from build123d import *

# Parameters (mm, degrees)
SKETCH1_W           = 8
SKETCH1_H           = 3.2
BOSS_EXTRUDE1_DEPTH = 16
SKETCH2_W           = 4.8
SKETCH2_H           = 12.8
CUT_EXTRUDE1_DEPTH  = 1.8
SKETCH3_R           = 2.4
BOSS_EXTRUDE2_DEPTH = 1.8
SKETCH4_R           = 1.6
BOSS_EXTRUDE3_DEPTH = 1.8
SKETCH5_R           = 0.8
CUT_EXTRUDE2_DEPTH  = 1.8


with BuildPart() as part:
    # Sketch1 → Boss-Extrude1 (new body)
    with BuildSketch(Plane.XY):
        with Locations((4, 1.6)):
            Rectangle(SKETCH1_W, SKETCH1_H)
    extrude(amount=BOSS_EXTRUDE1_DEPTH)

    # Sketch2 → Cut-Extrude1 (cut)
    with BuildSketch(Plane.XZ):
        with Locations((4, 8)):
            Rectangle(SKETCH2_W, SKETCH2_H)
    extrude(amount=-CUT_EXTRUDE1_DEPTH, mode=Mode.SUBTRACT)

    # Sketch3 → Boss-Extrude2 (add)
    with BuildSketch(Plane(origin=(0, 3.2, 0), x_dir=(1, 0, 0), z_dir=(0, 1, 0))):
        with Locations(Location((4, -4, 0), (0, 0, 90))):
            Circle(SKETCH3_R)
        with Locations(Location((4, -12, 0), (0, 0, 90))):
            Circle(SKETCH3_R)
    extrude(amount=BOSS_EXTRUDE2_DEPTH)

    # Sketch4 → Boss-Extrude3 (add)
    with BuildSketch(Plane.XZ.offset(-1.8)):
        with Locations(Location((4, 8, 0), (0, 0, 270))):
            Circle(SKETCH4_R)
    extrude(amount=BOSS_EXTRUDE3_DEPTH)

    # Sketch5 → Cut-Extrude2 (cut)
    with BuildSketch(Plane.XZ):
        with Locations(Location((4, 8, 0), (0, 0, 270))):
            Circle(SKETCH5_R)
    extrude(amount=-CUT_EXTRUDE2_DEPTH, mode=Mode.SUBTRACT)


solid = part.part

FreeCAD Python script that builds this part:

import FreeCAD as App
import Part
import Sketcher

V = App.Vector
Q = App.Units.Quantity


def add_polygon(sketch, points):
    """Adds a closed chain of lines whose ends are joined by coincident constraints."""
    first, n = sketch.GeometryCount, len(points)
    for a, b in zip(points, points[1:] + points[:1]):
        sketch.addGeometry(Part.LineSegment(App.Vector(*a, 0), App.Vector(*b, 0)), False)
    for i in range(n):
        sketch.addConstraint(Sketcher.Constraint("Coincident", first + i, 2, first + (i + 1) % n, 1))

doc = App.newDocument("Part")
body = doc.addObject("PartDesign::Body", "Body")

sketch1 = body.newObject("Sketcher::SketchObject", "Sketch")
sketch1.AttachmentSupport = (doc.getObject("XY_Plane"), [""])
sketch1.MapMode = "FlatFace"
add_polygon(sketch1, [(0, 3.2), (0, 0), (8, 0), (8, 3.2)])
sketch1.addConstraint(Sketcher.Constraint("Vertical", 0))
sketch1.addConstraint(Sketcher.Constraint("Horizontal", 1))
sketch1.addConstraint(Sketcher.Constraint("Vertical", 2))
sketch1.addConstraint(Sketcher.Constraint("Horizontal", 3))
sketch1.addConstraint(Sketcher.Constraint("Coincident", 0, 2, -1, 1))
sketch1.addConstraint(Sketcher.Constraint("DistanceX", 1, 1, 1, 2, Q("8 mm")))
sketch1.addConstraint(Sketcher.Constraint("DistanceY", 0, 2, 0, 1, Q("3.2 mm")))
pad1 = body.newObject("PartDesign::Pad", "Pad")
pad1.Profile = sketch1
pad1.Length = 16

sketch2 = body.newObject("Sketcher::SketchObject", "Sketch001")
sketch2.AttachmentSupport = (doc.getObject("XZ_Plane"), [""])
sketch2.MapMode = "FlatFace"
add_polygon(sketch2, [(1.6, 14.4), (1.6, 1.6), (6.4, 1.6), (6.4, 14.4)])
sketch2.addConstraint(Sketcher.Constraint("Vertical", 0))
sketch2.addConstraint(Sketcher.Constraint("Horizontal", 1))
sketch2.addConstraint(Sketcher.Constraint("Vertical", 2))
sketch2.addConstraint(Sketcher.Constraint("Horizontal", 3))
sketch2.addConstraint(Sketcher.Constraint("DistanceX", 1, 1, 1, 2, Q("4.8 mm")))
sketch2.addConstraint(Sketcher.Constraint("DistanceY", 0, 2, 0, 1, Q("12.8 mm")))
sketch2.addConstraint(Sketcher.Constraint("DistanceX", -1, 1, 0, 2, Q("1.6 mm")))
sketch2.addConstraint(Sketcher.Constraint("DistanceY", -1, 1, 0, 2, Q("1.6 mm")))
pocket1 = body.newObject("PartDesign::Pocket", "Pocket")
pocket1.Profile = sketch2
pocket1.Length = 1.8

sketch3 = body.newObject("Sketcher::SketchObject", "Sketch002")
sketch3.AttachmentSupport = (doc.getObject("XZ_Plane"), [""])
sketch3.MapMode = "FlatFace"
sketch3.AttachmentOffset = App.Placement(V(0, 0, -3.2), App.Rotation())
sketch3.addGeometry(Part.Circle(V(4, 4, 0), V(0, 0, 1), 2.4), False)
sketch3.addGeometry(Part.Circle(V(4, 12, 0), V(0, 0, 1), 2.4), False)
sketch3.addConstraint(Sketcher.Constraint("Equal", 0, 1))
sketch3.addConstraint(Sketcher.Constraint("Vertical", 0, 3, 1, 3))
sketch3.addConstraint(Sketcher.Constraint("Diameter", 0, Q("4.8 mm")))
sketch3.addConstraint(Sketcher.Constraint("DistanceX", -1, 1, 0, 3, Q("4 mm")))
sketch3.addConstraint(Sketcher.Constraint("DistanceY", -1, 1, 0, 3, Q("4 mm")))
sketch3.addConstraint(Sketcher.Constraint("DistanceY", -1, 1, 1, 3, Q("12 mm")))
pad2 = body.newObject("PartDesign::Pad", "Pad001")
pad2.Profile = sketch3
pad2.Length = 1.8
pad2.Reversed = True

sketch4 = body.newObject("Sketcher::SketchObject", "Sketch003")
sketch4.AttachmentSupport = (doc.getObject("XZ_Plane"), [""])
sketch4.MapMode = "FlatFace"
sketch4.AttachmentOffset = App.Placement(V(0, 0, -1.8), App.Rotation())
sketch4.addGeometry(Part.Circle(V(4, 8, 0), V(0, 0, 1), 1.6), False)
sketch4.addConstraint(Sketcher.Constraint("Diameter", 0, Q("3.2 mm")))
sketch4.addConstraint(Sketcher.Constraint("DistanceX", -1, 1, 0, 3, Q("4 mm")))
sketch4.addConstraint(Sketcher.Constraint("DistanceY", -1, 1, 0, 3, Q("8 mm")))
pad3 = body.newObject("PartDesign::Pad", "Pad002")
pad3.Profile = sketch4
pad3.Length = 1.8

sketch5 = body.newObject("Sketcher::SketchObject", "Sketch004")
sketch5.AttachmentSupport = (doc.getObject("XZ_Plane"), [""])
sketch5.MapMode = "FlatFace"
sketch5.addGeometry(Part.Circle(V(4, 8, 0), V(0, 0, 1), 0.8), False)
sketch5.addConstraint(Sketcher.Constraint("Diameter", 0, Q("1.6 mm")))
sketch5.addConstraint(Sketcher.Constraint("DistanceX", -1, 1, 0, 3, Q("4 mm")))
sketch5.addConstraint(Sketcher.Constraint("DistanceY", -1, 1, 0, 3, Q("8 mm")))
pocket2 = body.newObject("PartDesign::Pocket", "Pocket001")
pocket2.Profile = sketch5
pocket2.Length = 1.8

doc.recompute()
